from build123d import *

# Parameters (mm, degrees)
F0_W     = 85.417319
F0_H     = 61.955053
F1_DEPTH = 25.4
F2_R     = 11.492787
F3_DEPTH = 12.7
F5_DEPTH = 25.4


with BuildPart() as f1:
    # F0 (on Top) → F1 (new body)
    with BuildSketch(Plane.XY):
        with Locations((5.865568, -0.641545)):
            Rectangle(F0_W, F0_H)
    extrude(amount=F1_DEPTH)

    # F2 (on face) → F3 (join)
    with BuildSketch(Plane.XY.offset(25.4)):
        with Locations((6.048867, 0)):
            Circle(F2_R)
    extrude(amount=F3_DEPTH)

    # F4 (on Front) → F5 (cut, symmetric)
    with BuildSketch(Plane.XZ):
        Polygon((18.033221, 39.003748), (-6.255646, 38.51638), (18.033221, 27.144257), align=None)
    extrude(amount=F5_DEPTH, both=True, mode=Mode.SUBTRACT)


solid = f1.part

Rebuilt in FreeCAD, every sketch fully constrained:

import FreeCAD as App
import Part
import Sketcher

V = App.Vector
Q = App.Units.Quantity

doc = App.newDocument("Part")
body = doc.addObject("PartDesign::Body", "Body")

# Sketch on XY plane
sketch1 = body.newObject("Sketcher::SketchObject", "Sketch")
sketch1.AttachmentSupport = (doc.getObject("XY_Plane"), [""])
sketch1.MapMode = "FlatFace"
sketch1.addGeometry([
    Part.LineSegment(V(-37, 30, 0), V(-37, -32, 0)),
    Part.LineSegment(V(-37, -32, 0), V(49, -32, 0)),
    Part.LineSegment(V(49, -32, 0), V(49, 30, 0)),
    Part.LineSegment(V(49, 30, 0), V(-37, 30, 0)),
], False)
sketch1.addConstraint([
    Sketcher.Constraint("Coincident", 0, 2, 1, 1),
    Sketcher.Constraint("Coincident", 1, 2, 2, 1),
    Sketcher.Constraint("Coincident", 2, 2, 3, 1),
    Sketcher.Constraint("Coincident", 3, 2, 0, 1),
    Sketcher.Constraint("Vertical", 0),
    Sketcher.Constraint("Horizontal", 1),
    Sketcher.Constraint("Vertical", 2),
    Sketcher.Constraint("Horizontal", 3),
    Sketcher.Constraint("DistanceX", 1, 1, 1, 2, Q("85.417319 mm")),
    Sketcher.Constraint("DistanceY", 0, 2, 0, 1, Q("61.955053 mm")),
    Sketcher.Constraint("DistanceX", 0, 2, -1, 1, Q("36.843091 mm")),
    Sketcher.Constraint("DistanceY", 0, 2, -1, 1, Q("31.619072 mm")),
])
pad1 = body.newObject("PartDesign::Pad", "Pad")
pad1.Profile = sketch1
pad1.Length = Q("1 in")

# Sketch on XY plane
sketch2 = body.newObject("Sketcher::SketchObject", "Sketch001")
sketch2.AttachmentSupport = (doc.getObject("XY_Plane"), [""])
sketch2.MapMode = "FlatFace"
sketch2.AttachmentOffset = App.Placement(V(0, 0, 1 * 25.4), App.Rotation())
sketch2.addGeometry(Part.Circle(V(6, 0, 0), V(0, 0, 1), 11), False)
sketch2.addConstraint([
    Sketcher.Constraint("PointOnObject", 0, 3, -1),
    Sketcher.Constraint("Diameter", 0, Q("22.985574 mm")),
    Sketcher.Constraint("DistanceX", -1, 1, 0, 3, Q("6.048867 mm")),
])
pad2 = body.newObject("PartDesign::Pad", "Pad001")
pad2.Profile = sketch2
pad2.Length = Q("0.5 in")

# Sketch on XZ plane
sketch3 = body.newObject("Sketcher::SketchObject", "Sketch002")
sketch3.AttachmentSupport = (doc.getObject("XZ_Plane"), [""])
sketch3.MapMode = "FlatFace"
sketch3.addGeometry([
    Part.LineSegment(V(18, 39, 0), V(-6, 39, 0)),
    Part.LineSegment(V(-6, 39, 0), V(18, 27, 0)),
    Part.LineSegment(V(18, 27, 0), V(18, 39, 0)),
], False)
sketch3.addConstraint([
    Sketcher.Constraint("Coincident", 0, 2, 1, 1),
    Sketcher.Constraint("Coincident", 1, 2, 2, 1),
    Sketcher.Constraint("Coincident", 2, 2, 0, 1),
    Sketcher.Constraint("Vertical", 2),
    Sketcher.Constraint("DistanceY", 2, 1, 2, 2, Q("11.859491 mm")),
    Sketcher.Constraint("Distance", 1, Q("26.819289 mm")),
    Sketcher.Constraint("DistanceY", -1, 1, 0, 2, Q("38.51638 mm")),
    Sketcher.Constraint("DistanceX", -1, 1, 1, 2, Q("18.033221 mm")),
    Sketcher.Constraint("DistanceY", -1, 1, 2, 2, Q("39.003748 mm")),
])
pocket1 = body.newObject("PartDesign::Pocket", "Pocket")
pocket1.Profile = sketch3
pocket1.Length = Q("2 in")
pocket1.Midplane = True

doc.recompute()
